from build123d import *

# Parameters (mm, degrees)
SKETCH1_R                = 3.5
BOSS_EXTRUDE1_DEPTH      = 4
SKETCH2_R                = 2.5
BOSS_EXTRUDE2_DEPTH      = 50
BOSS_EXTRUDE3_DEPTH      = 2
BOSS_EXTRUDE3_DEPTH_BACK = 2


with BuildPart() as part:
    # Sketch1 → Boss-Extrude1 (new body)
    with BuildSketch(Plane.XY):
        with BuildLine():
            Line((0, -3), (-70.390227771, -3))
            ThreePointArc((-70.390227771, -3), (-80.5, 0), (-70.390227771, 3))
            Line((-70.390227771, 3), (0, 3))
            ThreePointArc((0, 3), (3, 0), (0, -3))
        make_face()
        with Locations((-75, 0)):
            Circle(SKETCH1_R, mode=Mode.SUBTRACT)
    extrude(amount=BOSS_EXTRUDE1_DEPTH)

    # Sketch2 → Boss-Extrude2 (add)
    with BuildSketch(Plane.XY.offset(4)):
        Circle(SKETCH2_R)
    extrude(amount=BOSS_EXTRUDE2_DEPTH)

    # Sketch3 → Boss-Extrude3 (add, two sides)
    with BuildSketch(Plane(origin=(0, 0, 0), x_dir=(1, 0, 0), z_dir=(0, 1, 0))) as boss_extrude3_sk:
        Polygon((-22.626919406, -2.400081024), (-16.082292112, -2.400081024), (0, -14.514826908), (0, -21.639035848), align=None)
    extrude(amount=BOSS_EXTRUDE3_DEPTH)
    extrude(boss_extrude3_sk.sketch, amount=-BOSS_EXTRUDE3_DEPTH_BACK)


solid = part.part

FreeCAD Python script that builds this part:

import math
import FreeCAD as App
import Part
import Sketcher

V = App.Vector

doc = App.newDocument("Part")
body = doc.addObject("PartDesign::Body", "Body")

sketch1 = body.newObject("Sketcher::SketchObject", "Sketch")
sketch1.AttachmentSupport = (doc.getObject("XY_Plane"), [""])
sketch1.MapMode = "FlatFace"
sketch1.addGeometry([
    Part.LineSegment(V(-70.4, -3, 0), V(0, -3, 0)),
    Part.ArcOfCircle(Part.Circle(V(0, 0, 0), V(0, 0, 1), 3), math.radians(-90), math.radians(90)),
    Part.LineSegment(V(0, 3, 0), V(-70.4, 3, 0)),
    Part.ArcOfCircle(Part.Circle(V(-75, 0, 0), V(0, 0, 1), 5.5), math.radians(33), math.radians(327)),
    Part.Circle(V(-75, 0, 0), V(0, 0, 1), 3.5),
], False)
sketch1.addConstraint([
    Sketcher.Constraint("Tangent", 0, 2, 1, 1),
    Sketcher.Constraint("Tangent", 1, 2, 2, 1),
    Sketcher.Constraint("Coincident", 2, 2, 3, 1),
    Sketcher.Constraint("Coincident", 3, 2, 0, 1),
    Sketcher.Constraint("Horizontal", 0),
    Sketcher.Constraint("Horizontal", 2),
    Sketcher.Constraint("Coincident", 1, 3, -1, 1),
    Sketcher.Constraint("Coincident", 4, 3, 3, 3),
    Sketcher.Constraint("PointOnObject", 3, 3, -1),
    Sketcher.Constraint("Diameter", 4, 7.0),
    Sketcher.Constraint("Radius", 1, 3.0),
    Sketcher.Constraint("Radius", 3, 5.5),
    Sketcher.Constraint("DistanceX", 3, 3, -1, 1, 75.0),
])
pad1 = body.newObject("PartDesign::Pad", "Pad")
pad1.Profile = sketch1
pad1.Length = 4

sketch2 = body.newObject("Sketcher::SketchObject", "Sketch001")
sketch2.AttachmentSupport = (doc.getObject("XY_Plane"), [""])
sketch2.MapMode = "FlatFace"
sketch2.AttachmentOffset = App.Placement(V(0, 0, 4), App.Rotation())
sketch2.addGeometry(Part.Circle(V(0, 0, 0), V(0, 0, 1), 2.5), False)
sketch2.addConstraint([
    Sketcher.Constraint("Coincident", 0, 3, -1, 1),
    Sketcher.Constraint("Diameter", 0, 5.0),
])
pad2 = body.newObject("PartDesign::Pad", "Pad001")
pad2.Profile = sketch2
pad2.Length = 50

sketch3 = body.newObject("Sketcher::SketchObject", "Sketch002")
sketch3.AttachmentSupport = (doc.getObject("XZ_Plane"), [""])
sketch3.MapMode = "FlatFace"
sketch3.addGeometry([
    Part.LineSegment(V(-16, 2, 0), V(-23, 2, 0)),
    Part.LineSegment(V(-23, 2, 0), V(0, 22, 0)),
    Part.LineSegment(V(0, 22, 0), V(0, 15, 0)),
    Part.LineSegment(V(0, 15, 0), V(-16, 2, 0)),
], False)
sketch3.addConstraint([
    Sketcher.Constraint("Coincident", 0, 2, 1, 1),
    Sketcher.Constraint("Coincident", 1, 2, 2, 1),
    Sketcher.Constraint("Coincident", 2, 2, 3, 1),
    Sketcher.Constraint("Coincident", 3, 2, 0, 1),
    Sketcher.Constraint("Horizontal", 0),
    Sketcher.Constraint("Vertical", 2),
    Sketcher.Constraint("PointOnObject", 1, 2, -2),
    Sketcher.Constraint("DistanceY", 2, 2, 2, 1, 7.124209),
    Sketcher.Constraint("Distance", 1, 29.700419),
    Sketcher.Constraint("DistanceX", 0, 2, 0, 1, 6.544627),
    Sketcher.Constraint("DistanceX", 0, 2, -1, 1, 22.626919),
    Sketcher.Constraint("DistanceY", -1, 1, 0, 2, 2.400081),
])
pad3 = body.newObject("PartDesign::Pad", "Pad002")
pad3.Profile = sketch3
pad3.Type = "TwoLengths"
pad3.Length = 2
pad3.Length2 = 2
pad3.Reversed = True

doc.recompute()
